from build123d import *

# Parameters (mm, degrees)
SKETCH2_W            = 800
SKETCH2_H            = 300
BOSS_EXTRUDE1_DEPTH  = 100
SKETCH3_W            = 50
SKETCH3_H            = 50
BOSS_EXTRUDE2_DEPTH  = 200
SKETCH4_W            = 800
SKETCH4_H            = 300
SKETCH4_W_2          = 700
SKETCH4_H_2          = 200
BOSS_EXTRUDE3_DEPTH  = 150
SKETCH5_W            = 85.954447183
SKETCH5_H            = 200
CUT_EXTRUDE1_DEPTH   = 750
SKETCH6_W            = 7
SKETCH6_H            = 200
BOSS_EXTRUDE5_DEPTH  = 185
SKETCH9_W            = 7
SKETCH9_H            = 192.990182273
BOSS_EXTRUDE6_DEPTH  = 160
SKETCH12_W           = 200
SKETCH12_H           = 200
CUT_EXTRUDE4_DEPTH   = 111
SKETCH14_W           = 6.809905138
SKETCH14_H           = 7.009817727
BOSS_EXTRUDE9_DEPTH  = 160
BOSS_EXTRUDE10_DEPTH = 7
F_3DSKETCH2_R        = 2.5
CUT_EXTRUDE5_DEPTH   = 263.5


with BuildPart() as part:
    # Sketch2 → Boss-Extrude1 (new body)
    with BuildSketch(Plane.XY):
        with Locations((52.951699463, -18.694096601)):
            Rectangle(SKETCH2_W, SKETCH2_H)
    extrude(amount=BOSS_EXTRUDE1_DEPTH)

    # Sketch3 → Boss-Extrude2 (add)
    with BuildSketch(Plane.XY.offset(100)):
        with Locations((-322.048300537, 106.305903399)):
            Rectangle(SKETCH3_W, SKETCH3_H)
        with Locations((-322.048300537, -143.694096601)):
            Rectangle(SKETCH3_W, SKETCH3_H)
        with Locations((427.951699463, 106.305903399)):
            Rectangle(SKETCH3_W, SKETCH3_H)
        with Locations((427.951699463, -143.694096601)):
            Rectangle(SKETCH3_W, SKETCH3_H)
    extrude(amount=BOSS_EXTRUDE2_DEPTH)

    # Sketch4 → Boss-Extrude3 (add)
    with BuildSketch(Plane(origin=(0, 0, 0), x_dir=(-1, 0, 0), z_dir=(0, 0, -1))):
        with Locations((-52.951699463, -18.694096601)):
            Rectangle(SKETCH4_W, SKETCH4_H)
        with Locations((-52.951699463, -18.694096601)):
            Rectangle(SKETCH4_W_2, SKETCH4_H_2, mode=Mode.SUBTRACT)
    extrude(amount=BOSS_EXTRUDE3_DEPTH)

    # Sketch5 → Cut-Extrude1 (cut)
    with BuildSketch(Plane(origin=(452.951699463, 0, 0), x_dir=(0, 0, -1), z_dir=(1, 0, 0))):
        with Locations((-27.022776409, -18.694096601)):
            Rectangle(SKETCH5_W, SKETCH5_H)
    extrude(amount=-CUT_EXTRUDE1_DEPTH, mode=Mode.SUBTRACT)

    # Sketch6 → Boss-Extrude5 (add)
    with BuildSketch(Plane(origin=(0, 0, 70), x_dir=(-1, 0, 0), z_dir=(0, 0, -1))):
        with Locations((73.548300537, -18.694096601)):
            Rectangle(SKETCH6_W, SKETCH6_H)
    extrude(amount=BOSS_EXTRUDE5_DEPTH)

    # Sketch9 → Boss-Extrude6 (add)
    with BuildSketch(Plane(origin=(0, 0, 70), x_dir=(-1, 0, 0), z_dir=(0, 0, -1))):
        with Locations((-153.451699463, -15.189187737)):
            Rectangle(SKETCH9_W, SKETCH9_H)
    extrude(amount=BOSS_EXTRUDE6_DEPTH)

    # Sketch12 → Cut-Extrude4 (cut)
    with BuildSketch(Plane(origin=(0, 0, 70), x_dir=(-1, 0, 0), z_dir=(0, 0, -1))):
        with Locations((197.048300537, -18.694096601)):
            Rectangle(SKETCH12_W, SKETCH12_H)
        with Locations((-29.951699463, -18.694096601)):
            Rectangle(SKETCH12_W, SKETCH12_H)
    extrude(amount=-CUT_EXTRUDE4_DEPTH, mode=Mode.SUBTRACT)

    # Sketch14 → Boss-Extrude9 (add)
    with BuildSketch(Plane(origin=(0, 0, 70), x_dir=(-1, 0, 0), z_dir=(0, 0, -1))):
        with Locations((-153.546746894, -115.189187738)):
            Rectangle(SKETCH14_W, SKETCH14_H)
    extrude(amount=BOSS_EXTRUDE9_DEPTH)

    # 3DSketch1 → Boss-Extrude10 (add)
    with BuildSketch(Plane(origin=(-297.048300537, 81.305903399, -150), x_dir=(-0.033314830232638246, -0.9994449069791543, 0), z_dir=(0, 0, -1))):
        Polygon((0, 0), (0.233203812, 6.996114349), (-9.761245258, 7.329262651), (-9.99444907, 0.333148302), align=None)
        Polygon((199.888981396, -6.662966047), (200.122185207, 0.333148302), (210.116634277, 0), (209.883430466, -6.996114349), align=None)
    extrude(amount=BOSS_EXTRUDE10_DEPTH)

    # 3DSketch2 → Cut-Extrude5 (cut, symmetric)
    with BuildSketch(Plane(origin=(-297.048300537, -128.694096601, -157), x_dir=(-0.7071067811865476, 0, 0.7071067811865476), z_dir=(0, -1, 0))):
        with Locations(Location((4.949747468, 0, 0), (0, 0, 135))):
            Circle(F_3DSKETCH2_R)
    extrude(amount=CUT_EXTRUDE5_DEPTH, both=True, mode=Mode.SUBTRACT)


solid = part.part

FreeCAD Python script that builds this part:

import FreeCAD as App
import Part
import Sketcher

V = App.Vector
Q = App.Units.Quantity


def add_polygon(sketch, points):
    """Adds a closed chain of lines whose ends are joined by coincident constraints."""
    first, n = sketch.GeometryCount, len(points)
    for a, b in zip(points, points[1:] + points[:1]):
        sketch.addGeometry(Part.LineSegment(App.Vector(*a, 0), App.Vector(*b, 0)), False)
    for i in range(n):
        sketch.addConstraint(Sketcher.Constraint("Coincident", first + i, 2, first + (i + 1) % n, 1))

doc = App.newDocument("Part")
body = doc.addObject("PartDesign::Body", "Body")

sketch1 = doc.addObject("Sketcher::SketchObject", "Sketch")
body.addObject(sketch1)
sketch1.AttachmentSupport = (doc.XY_Plane, [""])
sketch1.MapMode = "FlatFace"
add_polygon(sketch1, [(-347, 131), (-347, -169), (453, -169), (453, 131)])
sketch1.addConstraint(Sketcher.Constraint("Vertical", 0))
sketch1.addConstraint(Sketcher.Constraint("Horizontal", 1))
sketch1.addConstraint(Sketcher.Constraint("Vertical", 2))
sketch1.addConstraint(Sketcher.Constraint("Horizontal", 3))
sketch1.addConstraint(Sketcher.Constraint("DistanceX", 1, 1, 1, 2, Q("800 mm")))
sketch1.addConstraint(Sketcher.Constraint("DistanceY", 0, 2, 0, 1, Q("300 mm")))
sketch1.addConstraint(Sketcher.Constraint("DistanceX", 0, 2, -1, 1, Q("347.048301 mm")))
sketch1.addConstraint(Sketcher.Constraint("DistanceY", 0, 2, -1, 1, Q("168.694097 mm")))
pad1 = doc.addObject("PartDesign::Pad", "Pad")
body.addObject(pad1)
pad1.Profile = sketch1
pad1.Length = 100

sketch2 = doc.addObject("Sketcher::SketchObject", "Sketch001")
body.addObject(sketch2)
sketch2.AttachmentSupport = (doc.XY_Plane, [""])
sketch2.MapMode = "FlatFace"
sketch2.AttachmentOffset = App.Placement(V(0, 0, 100), App.Rotation())
add_polygon(sketch2, [(-347, 131), (-347, 81), (-297, 81), (-297, 131)])
add_polygon(sketch2, [(-347, -119), (-347, -169), (-297, -169), (-297, -119)])
add_polygon(sketch2, [(403, 131), (403, 81), (453, 81), (453, 131)])
add_polygon(sketch2, [(403, -119), (403, -169), (453, -169), (453, -119)])
sketch2.addConstraint(Sketcher.Constraint("Vertical", 0))
sketch2.addConstraint(Sketcher.Constraint("Horizontal", 1))
sketch2.addConstraint(Sketcher.Constraint("Vertical", 2))
sketch2.addConstraint(Sketcher.Constraint("Horizontal", 3))
sketch2.addConstraint(Sketcher.Constraint("Vertical", 4))
sketch2.addConstraint(Sketcher.Constraint("Horizontal", 5))
sketch2.addConstraint(Sketcher.Constraint("Vertical", 6))
sketch2.addConstraint(Sketcher.Constraint("Horizontal", 7))
sketch2.addConstraint(Sketcher.Constraint("Vertical", 8))
sketch2.addConstraint(Sketcher.Constraint("Horizontal", 9))
sketch2.addConstraint(Sketcher.Constraint("Vertical", 10))
sketch2.addConstraint(Sketcher.Constraint("Horizontal", 11))
sketch2.addConstraint(Sketcher.Constraint("Vertical", 12))
sketch2.addConstraint(Sketcher.Constraint("Horizontal", 13))
sketch2.addConstraint(Sketcher.Constraint("Vertical", 14))
sketch2.addConstraint(Sketcher.Constraint("Horizontal", 15))
sketch2.addConstraint(Sketcher.Constraint("Horizontal", 1, 2, 8, 2))
sketch2.addConstraint(Sketcher.Constraint("Horizontal", 3, 2, 10, 2))
sketch2.addConstraint(Sketcher.Constraint("Horizontal", 5, 2, 12, 2))
sketch2.addConstraint(Sketcher.Constraint("Horizontal", 7, 2, 14, 2))
sketch2.addConstraint(Sketcher.Constraint("Vertical", 3, 2, 4, 2))
sketch2.addConstraint(Sketcher.Constraint("Vertical", 2, 2, 5, 2))
sketch2.addConstraint(Sketcher.Constraint("Vertical", 11, 2, 12, 2))
sketch2.addConstraint(Sketcher.Constraint("Vertical", 10, 2, 13, 2))
sketch2.addConstraint(Sketcher.Constraint("Equal", 7, 9))
sketch2.addConstraint(Sketcher.Constraint("Equal", 15, 0))
sketch2.addConstraint(Sketcher.Constraint("Equal", 2, 4))
sketch2.addConstraint(Sketcher.Constraint("DistanceX", 1, 1, 1, 2, Q("50 mm")))
sketch2.addConstraint(Sketcher.Constraint("DistanceY", 4, 2, 0, 2, Q("250 mm")))
sketch2.addConstraint(Sketcher.Constraint("DistanceX", 1, 2, 8, 2, Q("700 mm")))
sketch2.addConstraint(Sketcher.Constraint("DistanceX", 0, 2, -1, 1, Q("347.048301 mm")))
sketch2.addConstraint(Sketcher.Constraint("DistanceY", -1, 1, 0, 2, Q("81.305903 mm")))
pad2 = doc.addObject("PartDesign::Pad", "Pad001")
body.addObject(pad2)
pad2.Profile = sketch2
pad2.Length = 200

sketch3 = doc.addObject("Sketcher::SketchObject", "Sketch002")
body.addObject(sketch3)
sketch3.AttachmentSupport = (doc.XY_Plane, [""])
sketch3.MapMode = "FlatFace"
add_polygon(sketch3, [(453, 131), (453, -169), (-347, -169), (-347, 131)])
add_polygon(sketch3, [(-297, -119), (403, -119), (403, 81), (-297, 81)])
sketch3.addConstraint(Sketcher.Constraint("Vertical", 0))
sketch3.addConstraint(Sketcher.Constraint("Horizontal", 1))
sketch3.addConstraint(Sketcher.Constraint("Vertical", 2))
sketch3.addConstraint(Sketcher.Constraint("Horizontal", 3))
sketch3.addConstraint(Sketcher.Constraint("Horizontal", 4))
sketch3.addConstraint(Sketcher.Constraint("Vertical", 5))
sketch3.addConstraint(Sketcher.Constraint("Horizontal", 6))
sketch3.addConstraint(Sketcher.Constraint("Vertical", 7))
sketch3.addConstraint(Sketcher.Constraint("DistanceX", 1, 2, 1, 1, Q("800 mm")))
sketch3.addConstraint(Sketcher.Constraint("DistanceX", 4, 1, 4, 2, Q("700 mm")))
sketch3.addConstraint(Sketcher.Constraint("DistanceY", 0, 2, 0, 1, Q("300 mm")))
sketch3.addConstraint(Sketcher.Constraint("DistanceY", 5, 1, 5, 2, Q("200 mm")))
sketch3.addConstraint(Sketcher.Constraint("DistanceX", 4, 2, 0, 2, Q("50 mm")))
sketch3.addConstraint(Sketcher.Constraint("DistanceY", 0, 2, 4, 2, Q("50 mm")))
sketch3.addConstraint(Sketcher.Constraint("DistanceX", -1, 1, 0, 2, Q("452.951699 mm")))
sketch3.addConstraint(Sketcher.Constraint("DistanceY", 0, 2, -1, 1, Q("168.694097 mm")))
pad3 = doc.addObject("PartDesign::Pad", "Pad002")
body.addObject(pad3)
pad3.Profile = sketch3
pad3.Length = 150
pad3.Reversed = True

sketch4 = doc.addObject("Sketcher::SketchObject", "Sketch003")
body.addObject(sketch4)
sketch4.AttachmentSupport = (doc.YZ_Plane, [""])
sketch4.MapMode = "FlatFace"
sketch4.AttachmentOffset = App.Placement(V(0, 0, 452.951699), App.Rotation())
add_polygon(sketch4, [(81, 70), (-119, 70), (-119, -16), (81, -16)])
sketch4.addConstraint(Sketcher.Constraint("Horizontal", 0))
sketch4.addConstraint(Sketcher.Constraint("Vertical", 1))
sketch4.addConstraint(Sketcher.Constraint("Horizontal", 2))
sketch4.addConstraint(Sketcher.Constraint("Vertical", 3))
sketch4.addConstraint(Sketcher.Constraint("DistanceX", 0, 2, 0, 1, Q("200 mm")))
sketch4.addConstraint(Sketcher.Constraint("DistanceY", -1, 1, 0, 2, Q("70 mm")))
sketch4.addConstraint(Sketcher.Constraint("DistanceY", 1, 2, 1, 1, Q("85.954447 mm")))
sketch4.addConstraint(Sketcher.Constraint("DistanceX", 0, 2, -1, 1, Q("118.694097 mm")))
pocket1 = doc.addObject("PartDesign::Pocket", "Pocket")
body.addObject(pocket1)
pocket1.Profile = sketch4
pocket1.Length = 750

sketch5 = doc.addObject("Sketcher::SketchObject", "Sketch004")
body.addObject(sketch5)
sketch5.AttachmentSupport = (doc.XY_Plane, [""])
sketch5.MapMode = "FlatFace"
sketch5.AttachmentOffset = App.Placement(V(0, 0, 70), App.Rotation())
add_polygon(sketch5, [(-70, 81), (-70, -119), (-77, -119), (-77, 81)])
sketch5.addConstraint(Sketcher.Constraint("Vertical", 0))
sketch5.addConstraint(Sketcher.Constraint("Horizontal", 1))
sketch5.addConstraint(Sketcher.Constraint("Vertical", 2))
sketch5.addConstraint(Sketcher.Constraint("Horizontal", 3))
sketch5.addConstraint(Sketcher.Constraint("DistanceX", 1, 2, 1, 1, Q("7 mm")))
sketch5.addConstraint(Sketcher.Constraint("DistanceY", 0, 2, 0, 1, Q("200 mm")))
sketch5.addConstraint(Sketcher.Constraint("DistanceX", 0, 2, -1, 1, Q("70.048301 mm")))
sketch5.addConstraint(Sketcher.Constraint("DistanceY", 0, 2, -1, 1, Q("118.694097 mm")))
pad4 = doc.addObject("PartDesign::Pad", "Pad003")
body.addObject(pad4)
pad4.Profile = sketch5
pad4.Length = 185
pad4.Reversed = True

sketch6 = doc.addObject("Sketcher::SketchObject", "Sketch005")
body.addObject(sketch6)
sketch6.AttachmentSupport = (doc.XY_Plane, [""])
sketch6.MapMode = "FlatFace"
sketch6.AttachmentOffset = App.Placement(V(0, 0, 70), App.Rotation())
add_polygon(sketch6, [(157, 81), (157, -112), (150, -112), (150, 81)])
sketch6.addConstraint(Sketcher.Constraint("Vertical", 0))
sketch6.addConstraint(Sketcher.Constraint("Horizontal", 1))
sketch6.addConstraint(Sketcher.Constraint("Vertical", 2))
sketch6.addConstraint(Sketcher.Constraint("Horizontal", 3))
sketch6.addConstraint(Sketcher.Constraint("DistanceX", 1, 2, 1, 1, Q("7 mm")))
sketch6.addConstraint(Sketcher.Constraint("DistanceX", -1, 1, 0, 2, Q("156.951699 mm")))
sketch6.addConstraint(Sketcher.Constraint("DistanceY", 0, 2, 0, 1, Q("192.990182 mm")))
sketch6.addConstraint(Sketcher.Constraint("DistanceY", 0, 2, -1, 1, Q("111.684279 mm")))
pad5 = doc.addObject("PartDesign::Pad", "Pad004")
body.addObject(pad5)
pad5.Profile = sketch6
pad5.Length = 160
pad5.Reversed = True

sketch7 = doc.addObject("Sketcher::SketchObject", "Sketch006")
body.addObject(sketch7)
sketch7.AttachmentSupport = (doc.XY_Plane, [""])
sketch7.MapMode = "FlatFace"
sketch7.AttachmentOffset = App.Placement(V(0, 0, 70), App.Rotation())
add_polygon(sketch7, [(-97, 81), (-97, -119), (-297, -119), (-297, 81)])
add_polygon(sketch7, [(130, 81), (130, -119), (-70, -119), (-70, 81)])
sketch7.addConstraint(Sketcher.Constraint("Vertical", 0))
sketch7.addConstraint(Sketcher.Constraint("Horizontal", 1))
sketch7.addConstraint(Sketcher.Constraint("Vertical", 2))
sketch7.addConstraint(Sketcher.Constraint("Horizontal", 3))
sketch7.addConstraint(Sketcher.Constraint("Vertical", 4))
sketch7.addConstraint(Sketcher.Constraint("Horizontal", 5))
sketch7.addConstraint(Sketcher.Constraint("Vertical", 6))
sketch7.addConstraint(Sketcher.Constraint("Horizontal", 7))
sketch7.addConstraint(Sketcher.Constraint("Horizontal", 1, 2, 4, 2))
sketch7.addConstraint(Sketcher.Constraint("Horizontal", 3, 2, 6, 2))
sketch7.addConstraint(Sketcher.Constraint("Equal", 3, 5))
sketch7.addConstraint(Sketcher.Constraint("Equal", 7, 0))
sketch7.addConstraint(Sketcher.Constraint("DistanceX", 1, 2, 1, 1, Q("200 mm")))
sketch7.addConstraint(Sketcher.Constraint("DistanceX", 0, 2, 4, 2, Q("227 mm")))
sketch7.addConstraint(Sketcher.Constraint("DistanceX", 0, 2, -1, 1, Q("97.048301 mm")))
sketch7.addConstraint(Sketcher.Constraint("DistanceY", 0, 2, -1, 1, Q("118.694097 mm")))
pocket2 = doc.addObject("PartDesign::Pocket", "Pocket001")
body.addObject(pocket2)
pocket2.Profile = sketch7
pocket2.Length = 111
pocket2.Reversed = True

sketch8 = doc.addObject("Sketcher::SketchObject", "Sketch007")
body.addObject(sketch8)
sketch8.AttachmentSupport = (doc.XY_Plane, [""])
sketch8.MapMode = "FlatFace"
sketch8.AttachmentOffset = App.Placement(V(0, 0, 70), App.Rotation())
add_polygon(sketch8, [(157, -112), (157, -119), (150, -119), (150, -112)])
sketch8.addConstraint(Sketcher.Constraint("Vertical", 0))
sketch8.addConstraint(Sketcher.Constraint("Horizontal", 1))
sketch8.addConstraint(Sketcher.Constraint("Vertical", 2))
sketch8.addConstraint(Sketcher.Constraint("Horizontal", 3))
sketch8.addConstraint(Sketcher.Constraint("DistanceX", -1, 1, 0, 2, Q("156.951699 mm")))
sketch8.addConstraint(Sketcher.Constraint("DistanceX", 1, 2, 1, 1, Q("6.809905 mm")))
sketch8.addConstraint(Sketcher.Constraint("DistanceY", 0, 2, 0, 1, Q("7.009818 mm")))
sketch8.addConstraint(Sketcher.Constraint("DistanceY", 2, 2, -1, 1, Q("111.684279 mm")))
pad6 = doc.addObject("PartDesign::Pad", "Pad005")
body.addObject(pad6)
pad6.Profile = sketch8
pad6.Length = 160
pad6.Reversed = True

sketch9 = doc.addObject("Sketcher::SketchObject", "Sketch008")
body.addObject(sketch9)
sketch9.AttachmentSupport = (doc.XY_Plane, [""])
sketch9.MapMode = "FlatFace"
sketch9.AttachmentOffset = App.Placement(V(0, 0, -150), App.Rotation())
add_polygon(sketch9, [(-297, 81), (-304, 81), (-304, 91), (-297, 91)])
add_polygon(sketch9, [(-304, -119), (-297, -119), (-297, -129), (-304, -129)])
sketch9.addConstraint(Sketcher.Constraint("Horizontal", 0))
sketch9.addConstraint(Sketcher.Constraint("Vertical", 1))
sketch9.addConstraint(Sketcher.Constraint("Horizontal", 2))
sketch9.addConstraint(Sketcher.Constraint("Vertical", 3))
sketch9.addConstraint(Sketcher.Constraint("Horizontal", 4))
sketch9.addConstraint(Sketcher.Constraint("Vertical", 5))
sketch9.addConstraint(Sketcher.Constraint("Horizontal", 6))
sketch9.addConstraint(Sketcher.Constraint("Vertical", 7))
sketch9.addConstraint(Sketcher.Constraint("Vertical", 3, 2, 4, 2))
sketch9.addConstraint(Sketcher.Constraint("Vertical", 1, 2, 6, 2))
sketch9.addConstraint(Sketcher.Constraint("Equal", 3, 5))
sketch9.addConstraint(Sketcher.Constraint("DistanceX", 0, 2, 0, 1, Q("7 mm")))
sketch9.addConstraint(Sketcher.Constraint("DistanceY", 1, 1, 1, 2, Q("10 mm")))
sketch9.addConstraint(Sketcher.Constraint("DistanceY", 4, 2, 3, 2, Q("200 mm")))
sketch9.addConstraint(Sketcher.Constraint("DistanceX", 0, 2, -1, 1, Q("304.048301 mm")))
sketch9.addConstraint(Sketcher.Constraint("DistanceY", -1, 1, 0, 2, Q("81.305903 mm")))
pad7 = doc.addObject("PartDesign::Pad", "Pad006")
body.addObject(pad7)
pad7.Profile = sketch9
pad7.Length = 7
pad7.Reversed = True

sketch10 = doc.addObject("Sketcher::SketchObject", "Sketch009")
body.addObject(sketch10)
sketch10.AttachmentSupport = (doc.XZ_Plane, [""])
sketch10.MapMode = "FlatFace"
sketch10.AttachmentOffset = App.Placement(V(0, 0, 128.694097), App.Rotation())
sketch10.addGeometry(Part.Circle(V(-300.5, -153.5, 0), V(0, 0, 1), 2.5), False)
sketch10.addConstraint(Sketcher.Constraint("Diameter", 0, Q("5 mm")))
sketch10.addConstraint(Sketcher.Constraint("DistanceY", 0, 3, -1, 1, Q("153.5 mm")))
sketch10.addConstraint(Sketcher.Constraint("DistanceX", 0, 3, -1, 1, Q("300.548301 mm")))
pocket3 = doc.addObject("PartDesign::Pocket", "Pocket002")
body.addObject(pocket3)
pocket3.Profile = sketch10
pocket3.Length = 527
pocket3.Midplane = True

doc.recompute()
